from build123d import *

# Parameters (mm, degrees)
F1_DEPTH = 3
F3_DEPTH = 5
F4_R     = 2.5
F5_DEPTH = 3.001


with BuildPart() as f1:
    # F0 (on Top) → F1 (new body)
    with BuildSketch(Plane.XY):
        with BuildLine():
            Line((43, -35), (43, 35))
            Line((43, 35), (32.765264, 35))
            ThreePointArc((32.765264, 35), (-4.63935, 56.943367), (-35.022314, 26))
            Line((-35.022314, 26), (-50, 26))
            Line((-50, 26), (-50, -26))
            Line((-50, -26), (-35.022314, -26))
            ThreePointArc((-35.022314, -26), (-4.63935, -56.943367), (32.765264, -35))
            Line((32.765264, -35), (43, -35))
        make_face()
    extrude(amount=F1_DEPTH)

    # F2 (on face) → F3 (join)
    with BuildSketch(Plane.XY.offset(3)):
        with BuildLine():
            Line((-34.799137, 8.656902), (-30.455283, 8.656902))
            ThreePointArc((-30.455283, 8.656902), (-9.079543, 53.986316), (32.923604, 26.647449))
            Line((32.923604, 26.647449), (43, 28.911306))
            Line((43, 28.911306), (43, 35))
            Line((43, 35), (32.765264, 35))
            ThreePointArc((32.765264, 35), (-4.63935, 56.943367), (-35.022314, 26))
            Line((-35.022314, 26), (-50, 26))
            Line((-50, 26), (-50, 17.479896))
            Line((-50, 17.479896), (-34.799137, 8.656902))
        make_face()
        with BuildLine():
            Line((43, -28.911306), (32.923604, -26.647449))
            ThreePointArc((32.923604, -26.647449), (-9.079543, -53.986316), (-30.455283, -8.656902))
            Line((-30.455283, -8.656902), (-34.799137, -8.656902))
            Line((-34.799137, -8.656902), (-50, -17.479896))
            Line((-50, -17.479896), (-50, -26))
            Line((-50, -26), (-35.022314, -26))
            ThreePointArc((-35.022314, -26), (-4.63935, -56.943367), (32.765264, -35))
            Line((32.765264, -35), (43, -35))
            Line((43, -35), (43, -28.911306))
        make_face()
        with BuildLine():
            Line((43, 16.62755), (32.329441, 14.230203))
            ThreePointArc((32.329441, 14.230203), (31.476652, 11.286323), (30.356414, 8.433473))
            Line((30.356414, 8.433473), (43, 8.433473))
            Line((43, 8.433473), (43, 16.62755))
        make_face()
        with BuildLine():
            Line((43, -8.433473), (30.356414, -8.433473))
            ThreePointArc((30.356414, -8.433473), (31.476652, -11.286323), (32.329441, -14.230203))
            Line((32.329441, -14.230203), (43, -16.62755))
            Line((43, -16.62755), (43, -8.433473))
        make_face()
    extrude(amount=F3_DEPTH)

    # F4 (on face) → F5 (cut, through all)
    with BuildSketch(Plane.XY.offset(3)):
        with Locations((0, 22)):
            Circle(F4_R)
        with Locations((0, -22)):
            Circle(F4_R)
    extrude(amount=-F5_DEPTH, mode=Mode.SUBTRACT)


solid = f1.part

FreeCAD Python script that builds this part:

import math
import FreeCAD as App
import Part
import Sketcher

doc = App.newDocument("Part")
body = doc.addObject("PartDesign::Body", "Body")

# Sketch on XY plane
sketch1 = body.newObject("Sketcher::SketchObject", "Sketch")
sketch1.AttachmentSupport = (doc.getObject("XY_Plane"), [""])
sketch1.MapMode = "FlatFace"
sketch1.addGeometry(Part.LineSegment(App.Vector(43, -35, 0), App.Vector(43, 35, 0)), False)
sketch1.addGeometry(Part.LineSegment(App.Vector(43, 35, 0), App.Vector(33, 35, 0)), False)
sketch1.addGeometry(Part.ArcOfCircle(Part.Circle(App.Vector(0, 22, 0), App.Vector(0, 0, 1), 35), math.radians(22), math.radians(173)), False)
sketch1.addGeometry(Part.LineSegment(App.Vector(-35, 26, 0), App.Vector(-50, 26, 0)), False)
sketch1.addGeometry(Part.LineSegment(App.Vector(-50, 26, 0), App.Vector(-50, -26, 0)), False)
sketch1.addGeometry(Part.LineSegment(App.Vector(-50, -26, 0), App.Vector(-35, -26, 0)), False)
sketch1.addGeometry(Part.ArcOfCircle(Part.Circle(App.Vector(0, -22, 0), App.Vector(0, 0, 1), 35), math.radians(-173), math.radians(-22)), False)
sketch1.addGeometry(Part.LineSegment(App.Vector(33, -35, 0), App.Vector(43, -35, 0)), False)
sketch1.addConstraint(Sketcher.Constraint("Coincident", 0, 2, 1, 1))
sketch1.addConstraint(Sketcher.Constraint("Coincident", 1, 2, 2, 1))
sketch1.addConstraint(Sketcher.Constraint("Coincident", 2, 2, 3, 1))
sketch1.addConstraint(Sketcher.Constraint("Coincident", 3, 2, 4, 1))
sketch1.addConstraint(Sketcher.Constraint("Coincident", 4, 2, 5, 1))
sketch1.addConstraint(Sketcher.Constraint("Coincident", 5, 2, 6, 1))
sketch1.addConstraint(Sketcher.Constraint("Coincident", 6, 2, 7, 1))
sketch1.addConstraint(Sketcher.Constraint("Coincident", 7, 2, 0, 1))
sketch1.addConstraint(Sketcher.Constraint("Vertical", 0))
sketch1.addConstraint(Sketcher.Constraint("Horizontal", 1))
sketch1.addConstraint(Sketcher.Constraint("Horizontal", 3))
sketch1.addConstraint(Sketcher.Constraint("Vertical", 4))
sketch1.addConstraint(Sketcher.Constraint("Horizontal", 5))
sketch1.addConstraint(Sketcher.Constraint("Horizontal", 7))
sketch1.addConstraint(Sketcher.Constraint("Equal", 2, 6))
sketch1.addConstraint(Sketcher.Constraint("Symmetric", 2, 3, 6, 3, -1, 1))
sketch1.addConstraint(Sketcher.Constraint("Symmetric", 2, 2, 5, 2, -1))
sketch1.addConstraint(Sketcher.Constraint("Vertical", 1, 2, 6, 2))
sketch1.addConstraint(Sketcher.Constraint("DistanceY", 0, 1, 0, 2, 70.0))
sketch1.addConstraint(Sketcher.Constraint("DistanceY", 4, 2, 4, 1, 52.0))
sketch1.addConstraint(Sketcher.Constraint("Radius", 2, 35.25))
sketch1.addConstraint(Sketcher.Constraint("DistanceY", -1, 1, 2, 3, 21.999999))
sketch1.addConstraint(Sketcher.Constraint("DistanceX", -1, 1, 0, 2, 43.0))
sketch1.addConstraint(Sketcher.Constraint("DistanceX", 3, 2, -1, 1, 50.0))
pad1 = body.newObject("PartDesign::Pad", "Pad")
pad1.Profile = sketch1
pad1.Length = 3

# Sketch on XY plane
sketch2 = body.newObject("Sketcher::SketchObject", "Sketch001")
sketch2.AttachmentSupport = (doc.getObject("XY_Plane"), [""])
sketch2.MapMode = "FlatFace"
sketch2.AttachmentOffset = App.Placement(App.Vector(0, 0, 3), App.Rotation())
sketch2.addGeometry(Part.LineSegment(App.Vector(-34.8, 8.7, 0), App.Vector(-30.5, 8.7, 0)), False)
sketch2.addGeometry(Part.ArcOfCircle(Part.Circle(App.Vector(0, 22, 0), App.Vector(0, 0, 1), 33.3), math.radians(8), math.radians(204)), False)
sketch2.addGeometry(Part.LineSegment(App.Vector(32.9, 26.6, 0), App.Vector(43, 28.9, 0)), False)
sketch2.addGeometry(Part.LineSegment(App.Vector(43, 28.9, 0), App.Vector(43, 35, 0)), False)
sketch2.addGeometry(Part.LineSegment(App.Vector(43, 35, 0), App.Vector(32.8, 35, 0)), False)
sketch2.addGeometry(Part.ArcOfCircle(Part.Circle(App.Vector(0, 22, 0), App.Vector(0, 0, 1), 35.3), math.radians(22), math.radians(173)), False)
sketch2.addGeometry(Part.LineSegment(App.Vector(-35, 26, 0), App.Vector(-50, 26, 0)), False)
sketch2.addGeometry(Part.LineSegment(App.Vector(-50, 26, 0), App.Vector(-50, 17.5, 0)), False)
sketch2.addGeometry(Part.LineSegment(App.Vector(-50, 17.5, 0), App.Vector(-34.8, 8.7, 0)), False)
sketch2.addGeometry(Part.LineSegment(App.Vector(43, -28.9, 0), App.Vector(32.9, -26.6, 0)), False)
sketch2.addGeometry(Part.ArcOfCircle(Part.Circle(App.Vector(0, -22, 0), App.Vector(0, 0, 1), 33.3), math.radians(156), math.radians(352)), False)
sketch2.addGeometry(Part.LineSegment(App.Vector(-30.5, -8.7, 0), App.Vector(-34.8, -8.7, 0)), False)
sketch2.addGeometry(Part.LineSegment(App.Vector(-34.8, -8.7, 0), App.Vector(-50, -17.5, 0)), False)
sketch2.addGeometry(Part.LineSegment(App.Vector(-50, -17.5, 0), App.Vector(-50, -26, 0)), False)
sketch2.addGeometry(Part.LineSegment(App.Vector(-50, -26, 0), App.Vector(-35, -26, 0)), False)
sketch2.addGeometry(Part.ArcOfCircle(Part.Circle(App.Vector(0, -22, 0), App.Vector(0, 0, 1), 35.3), math.radians(-173), math.radians(-22)), False)
sketch2.addGeometry(Part.LineSegment(App.Vector(32.8, -35, 0), App.Vector(43, -35, 0)), False)
sketch2.addGeometry(Part.LineSegment(App.Vector(43, -35, 0), App.Vector(43, -28.9, 0)), False)
sketch2.addGeometry(Part.LineSegment(App.Vector(43, 16.6, 0), App.Vector(32.3, 14.2, 0)), False)
sketch2.addGeometry(Part.ArcOfCircle(Part.Circle(App.Vector(0, 22, 0), App.Vector(0, 0, 1), 33.3), math.radians(-24.08), math.radians(-13.51)), False)
sketch2.addGeometry(Part.LineSegment(App.Vector(30.4, 8.4, 0), App.Vector(43, 8.4, 0)), False)
sketch2.addGeometry(Part.LineSegment(App.Vector(43, 8.4, 0), App.Vector(43, 16.6, 0)), False)
sketch2.addGeometry(Part.LineSegment(App.Vector(43, -8.4, 0), App.Vector(30.4, -8.4, 0)), False)
sketch2.addGeometry(Part.ArcOfCircle(Part.Circle(App.Vector(0, -22, 0), App.Vector(0, 0, 1), 33.3), math.radians(13.51), math.radians(24.08)), False)
sketch2.addGeometry(Part.LineSegment(App.Vector(32.3, -14.2, 0), App.Vector(43, -16.6, 0)), False)
sketch2.addGeometry(Part.LineSegment(App.Vector(43, -16.6, 0), App.Vector(43, -8.4, 0)), False)
sketch2.addConstraint(Sketcher.Constraint("Coincident", 0, 2, 1, 2))
sketch2.addConstraint(Sketcher.Constraint("Coincident", 1, 1, 2, 1))
sketch2.addConstraint(Sketcher.Constraint("Coincident", 2, 2, 3, 1))
sketch2.addConstraint(Sketcher.Constraint("Coincident", 3, 2, 4, 1))
sketch2.addConstraint(Sketcher.Constraint("Coincident", 4, 2, 5, 1))
sketch2.addConstraint(Sketcher.Constraint("Coincident", 5, 2, 6, 1))
sketch2.addConstraint(Sketcher.Constraint("Coincident", 6, 2, 7, 1))
sketch2.addConstraint(Sketcher.Constraint("Coincident", 7, 2, 8, 1))
sketch2.addConstraint(Sketcher.Constraint("Coincident", 8, 2, 0, 1))
sketch2.addConstraint(Sketcher.Constraint("Coincident", 9, 2, 10, 2))
sketch2.addConstraint(Sketcher.Constraint("Coincident", 10, 1, 11, 1))
sketch2.addConstraint(Sketcher.Constraint("Coincident", 11, 2, 12, 1))
sketch2.addConstraint(Sketcher.Constraint("Coincident", 12, 2, 13, 1))
sketch2.addConstraint(Sketcher.Constraint("Coincident", 13, 2, 14, 1))
sketch2.addConstraint(Sketcher.Constraint("Coincident", 14, 2, 15, 1))
sketch2.addConstraint(Sketcher.Constraint("Coincident", 15, 2, 16, 1))
sketch2.addConstraint(Sketcher.Constraint("Coincident", 16, 2, 17, 1))
sketch2.addConstraint(Sketcher.Constraint("Coincident", 17, 2, 9, 1))
sketch2.addConstraint(Sketcher.Constraint("Coincident", 18, 2, 19, 2))
sketch2.addConstraint(Sketcher.Constraint("Coincident", 19, 1, 20, 1))
sketch2.addConstraint(Sketcher.Constraint("Coincident", 20, 2, 21, 1))
sketch2.addConstraint(Sketcher.Constraint("Coincident", 21, 2, 18, 1))
sketch2.addConstraint(Sketcher.Constraint("Coincident", 22, 2, 23, 2))
sketch2.addConstraint(Sketcher.Constraint("Coincident", 23, 1, 24, 1))
sketch2.addConstraint(Sketcher.Constraint("Coincident", 24, 2, 25, 1))
sketch2.addConstraint(Sketcher.Constraint("Coincident", 25, 2, 22, 1))
sketch2.addConstraint(Sketcher.Constraint("Horizontal", 0))
sketch2.addConstraint(Sketcher.Constraint("Vertical", 3))
sketch2.addConstraint(Sketcher.Constraint("Horizontal", 4))
sketch2.addConstraint(Sketcher.Constraint("Horizontal", 6))
sketch2.addConstraint(Sketcher.Constraint("Vertical", 7))
sketch2.addConstraint(Sketcher.Constraint("Horizontal", 11))
sketch2.addConstraint(Sketcher.Constraint("Vertical", 13))
sketch2.addConstraint(Sketcher.Constraint("Horizontal", 14))
sketch2.addConstraint(Sketcher.Constraint("Horizontal", 16))
sketch2.addConstraint(Sketcher.Constraint("Vertical", 17))
sketch2.addConstraint(Sketcher.Constraint("Horizontal", 20))
sketch2.addConstraint(Sketcher.Constraint("Vertical", 21))
sketch2.addConstraint(Sketcher.Constraint("Horizontal", 22))
sketch2.addConstraint(Sketcher.Constraint("Vertical", 25))
sketch2.addConstraint(Sketcher.Constraint("Coincident", 5, 3, 1, 3))
sketch2.addConstraint(Sketcher.Constraint("Coincident", 15, 3, 10, 3))
sketch2.addConstraint(Sketcher.Constraint("Equal", 1, 10))
sketch2.addConstraint(Sketcher.Constraint("Equal", 5, 15))
sketch2.addConstraint(Sketcher.Constraint("Equal", 19, 23))
sketch2.addConstraint(Sketcher.Constraint("Symmetric", 1, 3, 10, 3, -1, 1))
sketch2.addConstraint(Sketcher.Constraint("Symmetric", 19, 3, 23, 3, -1))
sketch2.addConstraint(Sketcher.Constraint("Symmetric", 1, 1, 9, 2, -1))
sketch2.addConstraint(Sketcher.Constraint("Symmetric", 8, 2, 11, 2, -1))
sketch2.addConstraint(Sketcher.Constraint("Symmetric", 7, 2, 12, 2, -1))
sketch2.addConstraint(Sketcher.Constraint("Symmetric", 3, 2, 16, 2, -1))
sketch2.addConstraint(Sketcher.Constraint("Symmetric", 21, 2, 24, 2, -1))
sketch2.addConstraint(Sketcher.Constraint("Parallel", 2, 18))
sketch2.addConstraint(Sketcher.Constraint("Parallel", 9, 24))
sketch2.addConstraint(Sketcher.Constraint("Vertical", 5, 2, 14, 2))
sketch2.addConstraint(Sketcher.Constraint("Vertical", 17, 2, 20, 2))
sketch2.addConstraint(Sketcher.Constraint("Vertical", 19, 1, 22, 2))
sketch2.addConstraint(Sketcher.Constraint("Vertical", 18, 2, 23, 1))
sketch2.addConstraint(Sketcher.Constraint("Radius", 1, 33.25))
sketch2.addConstraint(Sketcher.Constraint("Radius", 5, 35.25))
sketch2.addConstraint(Sketcher.Constraint("DistanceY", -1, 1, 1, 3, 22.0))
sketch2.addConstraint(Sketcher.Constraint("DistanceX", -1, 1, 2, 2, 43.0))
sketch2.addConstraint(Sketcher.Constraint("DistanceY", -1, 1, 3, 2, 35.0))
sketch2.addConstraint(Sketcher.Constraint("DistanceY", -1, 1, 5, 2, 26.0))
sketch2.addConstraint(Sketcher.Constraint("DistanceX", 6, 2, -1, 1, 50.0))
sketch2.addConstraint(Sketcher.Constraint("Radius", 19, 33.250061))
sketch2.addConstraint(Sketcher.Constraint("DistanceY", 0, 2, 1, 3, 13.343098))
sketch2.addConstraint(Sketcher.Constraint("DistanceY", 10, 1, 7, 2, 26.136798))
sketch2.addConstraint(Sketcher.Constraint("DistanceY", 21, 2, 1, 1, 10.019899))
sketch2.addConstraint(Sketcher.Constraint("Distance", 18, 10.936549))
sketch2.addConstraint(Sketcher.Constraint("DistanceX", 0, 1, 0, 2, 4.343854))
sketch2.addConstraint(Sketcher.Constraint("DistanceX", 20, 1, 20, 2, 12.643586))
sketch2.addConstraint(Sketcher.Constraint("DistanceY", 3, 1, 3, 2, 6.088694))
sketch2.addConstraint(Sketcher.Constraint("DistanceY", 21, 1, 21, 2, 8.194077))
sketch2.addConstraint(Sketcher.Constraint("DistanceY", -1, 1, 1, 1, 26.647449))
pad2 = body.newObject("PartDesign::Pad", "Pad001")
pad2.Profile = sketch2
pad2.Length = 5

# Sketch on XY plane
sketch3 = body.newObject("Sketcher::SketchObject", "Sketch002")
sketch3.AttachmentSupport = (doc.getObject("XY_Plane"), [""])
sketch3.MapMode = "FlatFace"
sketch3.AttachmentOffset = App.Placement(App.Vector(0, 0, 3), App.Rotation())
sketch3.addGeometry(Part.Circle(App.Vector(0, 22, 0), App.Vector(0, 0, 1), 2.5), False)
sketch3.addGeometry(Part.Circle(App.Vector(0, -22, 0), App.Vector(0, 0, 1), 2.5), False)
sketch3.addConstraint(Sketcher.Constraint("Equal", 0, 1))
sketch3.addConstraint(Sketcher.Constraint("Symmetric", 0, 3, 1, 3, -1, 1))
sketch3.addConstraint(Sketcher.Constraint("PointOnObject", 0, 3, -2))
sketch3.addConstraint(Sketcher.Constraint("Diameter", 0, 5.0))
sketch3.addConstraint(Sketcher.Constraint("DistanceY", -1, 1, 0, 3, 22.0))
pocket1 = body.newObject("PartDesign::Pocket", "Pocket")
pocket1.Profile = sketch3
pocket1.Type = "ThroughAll"

doc.recompute()
